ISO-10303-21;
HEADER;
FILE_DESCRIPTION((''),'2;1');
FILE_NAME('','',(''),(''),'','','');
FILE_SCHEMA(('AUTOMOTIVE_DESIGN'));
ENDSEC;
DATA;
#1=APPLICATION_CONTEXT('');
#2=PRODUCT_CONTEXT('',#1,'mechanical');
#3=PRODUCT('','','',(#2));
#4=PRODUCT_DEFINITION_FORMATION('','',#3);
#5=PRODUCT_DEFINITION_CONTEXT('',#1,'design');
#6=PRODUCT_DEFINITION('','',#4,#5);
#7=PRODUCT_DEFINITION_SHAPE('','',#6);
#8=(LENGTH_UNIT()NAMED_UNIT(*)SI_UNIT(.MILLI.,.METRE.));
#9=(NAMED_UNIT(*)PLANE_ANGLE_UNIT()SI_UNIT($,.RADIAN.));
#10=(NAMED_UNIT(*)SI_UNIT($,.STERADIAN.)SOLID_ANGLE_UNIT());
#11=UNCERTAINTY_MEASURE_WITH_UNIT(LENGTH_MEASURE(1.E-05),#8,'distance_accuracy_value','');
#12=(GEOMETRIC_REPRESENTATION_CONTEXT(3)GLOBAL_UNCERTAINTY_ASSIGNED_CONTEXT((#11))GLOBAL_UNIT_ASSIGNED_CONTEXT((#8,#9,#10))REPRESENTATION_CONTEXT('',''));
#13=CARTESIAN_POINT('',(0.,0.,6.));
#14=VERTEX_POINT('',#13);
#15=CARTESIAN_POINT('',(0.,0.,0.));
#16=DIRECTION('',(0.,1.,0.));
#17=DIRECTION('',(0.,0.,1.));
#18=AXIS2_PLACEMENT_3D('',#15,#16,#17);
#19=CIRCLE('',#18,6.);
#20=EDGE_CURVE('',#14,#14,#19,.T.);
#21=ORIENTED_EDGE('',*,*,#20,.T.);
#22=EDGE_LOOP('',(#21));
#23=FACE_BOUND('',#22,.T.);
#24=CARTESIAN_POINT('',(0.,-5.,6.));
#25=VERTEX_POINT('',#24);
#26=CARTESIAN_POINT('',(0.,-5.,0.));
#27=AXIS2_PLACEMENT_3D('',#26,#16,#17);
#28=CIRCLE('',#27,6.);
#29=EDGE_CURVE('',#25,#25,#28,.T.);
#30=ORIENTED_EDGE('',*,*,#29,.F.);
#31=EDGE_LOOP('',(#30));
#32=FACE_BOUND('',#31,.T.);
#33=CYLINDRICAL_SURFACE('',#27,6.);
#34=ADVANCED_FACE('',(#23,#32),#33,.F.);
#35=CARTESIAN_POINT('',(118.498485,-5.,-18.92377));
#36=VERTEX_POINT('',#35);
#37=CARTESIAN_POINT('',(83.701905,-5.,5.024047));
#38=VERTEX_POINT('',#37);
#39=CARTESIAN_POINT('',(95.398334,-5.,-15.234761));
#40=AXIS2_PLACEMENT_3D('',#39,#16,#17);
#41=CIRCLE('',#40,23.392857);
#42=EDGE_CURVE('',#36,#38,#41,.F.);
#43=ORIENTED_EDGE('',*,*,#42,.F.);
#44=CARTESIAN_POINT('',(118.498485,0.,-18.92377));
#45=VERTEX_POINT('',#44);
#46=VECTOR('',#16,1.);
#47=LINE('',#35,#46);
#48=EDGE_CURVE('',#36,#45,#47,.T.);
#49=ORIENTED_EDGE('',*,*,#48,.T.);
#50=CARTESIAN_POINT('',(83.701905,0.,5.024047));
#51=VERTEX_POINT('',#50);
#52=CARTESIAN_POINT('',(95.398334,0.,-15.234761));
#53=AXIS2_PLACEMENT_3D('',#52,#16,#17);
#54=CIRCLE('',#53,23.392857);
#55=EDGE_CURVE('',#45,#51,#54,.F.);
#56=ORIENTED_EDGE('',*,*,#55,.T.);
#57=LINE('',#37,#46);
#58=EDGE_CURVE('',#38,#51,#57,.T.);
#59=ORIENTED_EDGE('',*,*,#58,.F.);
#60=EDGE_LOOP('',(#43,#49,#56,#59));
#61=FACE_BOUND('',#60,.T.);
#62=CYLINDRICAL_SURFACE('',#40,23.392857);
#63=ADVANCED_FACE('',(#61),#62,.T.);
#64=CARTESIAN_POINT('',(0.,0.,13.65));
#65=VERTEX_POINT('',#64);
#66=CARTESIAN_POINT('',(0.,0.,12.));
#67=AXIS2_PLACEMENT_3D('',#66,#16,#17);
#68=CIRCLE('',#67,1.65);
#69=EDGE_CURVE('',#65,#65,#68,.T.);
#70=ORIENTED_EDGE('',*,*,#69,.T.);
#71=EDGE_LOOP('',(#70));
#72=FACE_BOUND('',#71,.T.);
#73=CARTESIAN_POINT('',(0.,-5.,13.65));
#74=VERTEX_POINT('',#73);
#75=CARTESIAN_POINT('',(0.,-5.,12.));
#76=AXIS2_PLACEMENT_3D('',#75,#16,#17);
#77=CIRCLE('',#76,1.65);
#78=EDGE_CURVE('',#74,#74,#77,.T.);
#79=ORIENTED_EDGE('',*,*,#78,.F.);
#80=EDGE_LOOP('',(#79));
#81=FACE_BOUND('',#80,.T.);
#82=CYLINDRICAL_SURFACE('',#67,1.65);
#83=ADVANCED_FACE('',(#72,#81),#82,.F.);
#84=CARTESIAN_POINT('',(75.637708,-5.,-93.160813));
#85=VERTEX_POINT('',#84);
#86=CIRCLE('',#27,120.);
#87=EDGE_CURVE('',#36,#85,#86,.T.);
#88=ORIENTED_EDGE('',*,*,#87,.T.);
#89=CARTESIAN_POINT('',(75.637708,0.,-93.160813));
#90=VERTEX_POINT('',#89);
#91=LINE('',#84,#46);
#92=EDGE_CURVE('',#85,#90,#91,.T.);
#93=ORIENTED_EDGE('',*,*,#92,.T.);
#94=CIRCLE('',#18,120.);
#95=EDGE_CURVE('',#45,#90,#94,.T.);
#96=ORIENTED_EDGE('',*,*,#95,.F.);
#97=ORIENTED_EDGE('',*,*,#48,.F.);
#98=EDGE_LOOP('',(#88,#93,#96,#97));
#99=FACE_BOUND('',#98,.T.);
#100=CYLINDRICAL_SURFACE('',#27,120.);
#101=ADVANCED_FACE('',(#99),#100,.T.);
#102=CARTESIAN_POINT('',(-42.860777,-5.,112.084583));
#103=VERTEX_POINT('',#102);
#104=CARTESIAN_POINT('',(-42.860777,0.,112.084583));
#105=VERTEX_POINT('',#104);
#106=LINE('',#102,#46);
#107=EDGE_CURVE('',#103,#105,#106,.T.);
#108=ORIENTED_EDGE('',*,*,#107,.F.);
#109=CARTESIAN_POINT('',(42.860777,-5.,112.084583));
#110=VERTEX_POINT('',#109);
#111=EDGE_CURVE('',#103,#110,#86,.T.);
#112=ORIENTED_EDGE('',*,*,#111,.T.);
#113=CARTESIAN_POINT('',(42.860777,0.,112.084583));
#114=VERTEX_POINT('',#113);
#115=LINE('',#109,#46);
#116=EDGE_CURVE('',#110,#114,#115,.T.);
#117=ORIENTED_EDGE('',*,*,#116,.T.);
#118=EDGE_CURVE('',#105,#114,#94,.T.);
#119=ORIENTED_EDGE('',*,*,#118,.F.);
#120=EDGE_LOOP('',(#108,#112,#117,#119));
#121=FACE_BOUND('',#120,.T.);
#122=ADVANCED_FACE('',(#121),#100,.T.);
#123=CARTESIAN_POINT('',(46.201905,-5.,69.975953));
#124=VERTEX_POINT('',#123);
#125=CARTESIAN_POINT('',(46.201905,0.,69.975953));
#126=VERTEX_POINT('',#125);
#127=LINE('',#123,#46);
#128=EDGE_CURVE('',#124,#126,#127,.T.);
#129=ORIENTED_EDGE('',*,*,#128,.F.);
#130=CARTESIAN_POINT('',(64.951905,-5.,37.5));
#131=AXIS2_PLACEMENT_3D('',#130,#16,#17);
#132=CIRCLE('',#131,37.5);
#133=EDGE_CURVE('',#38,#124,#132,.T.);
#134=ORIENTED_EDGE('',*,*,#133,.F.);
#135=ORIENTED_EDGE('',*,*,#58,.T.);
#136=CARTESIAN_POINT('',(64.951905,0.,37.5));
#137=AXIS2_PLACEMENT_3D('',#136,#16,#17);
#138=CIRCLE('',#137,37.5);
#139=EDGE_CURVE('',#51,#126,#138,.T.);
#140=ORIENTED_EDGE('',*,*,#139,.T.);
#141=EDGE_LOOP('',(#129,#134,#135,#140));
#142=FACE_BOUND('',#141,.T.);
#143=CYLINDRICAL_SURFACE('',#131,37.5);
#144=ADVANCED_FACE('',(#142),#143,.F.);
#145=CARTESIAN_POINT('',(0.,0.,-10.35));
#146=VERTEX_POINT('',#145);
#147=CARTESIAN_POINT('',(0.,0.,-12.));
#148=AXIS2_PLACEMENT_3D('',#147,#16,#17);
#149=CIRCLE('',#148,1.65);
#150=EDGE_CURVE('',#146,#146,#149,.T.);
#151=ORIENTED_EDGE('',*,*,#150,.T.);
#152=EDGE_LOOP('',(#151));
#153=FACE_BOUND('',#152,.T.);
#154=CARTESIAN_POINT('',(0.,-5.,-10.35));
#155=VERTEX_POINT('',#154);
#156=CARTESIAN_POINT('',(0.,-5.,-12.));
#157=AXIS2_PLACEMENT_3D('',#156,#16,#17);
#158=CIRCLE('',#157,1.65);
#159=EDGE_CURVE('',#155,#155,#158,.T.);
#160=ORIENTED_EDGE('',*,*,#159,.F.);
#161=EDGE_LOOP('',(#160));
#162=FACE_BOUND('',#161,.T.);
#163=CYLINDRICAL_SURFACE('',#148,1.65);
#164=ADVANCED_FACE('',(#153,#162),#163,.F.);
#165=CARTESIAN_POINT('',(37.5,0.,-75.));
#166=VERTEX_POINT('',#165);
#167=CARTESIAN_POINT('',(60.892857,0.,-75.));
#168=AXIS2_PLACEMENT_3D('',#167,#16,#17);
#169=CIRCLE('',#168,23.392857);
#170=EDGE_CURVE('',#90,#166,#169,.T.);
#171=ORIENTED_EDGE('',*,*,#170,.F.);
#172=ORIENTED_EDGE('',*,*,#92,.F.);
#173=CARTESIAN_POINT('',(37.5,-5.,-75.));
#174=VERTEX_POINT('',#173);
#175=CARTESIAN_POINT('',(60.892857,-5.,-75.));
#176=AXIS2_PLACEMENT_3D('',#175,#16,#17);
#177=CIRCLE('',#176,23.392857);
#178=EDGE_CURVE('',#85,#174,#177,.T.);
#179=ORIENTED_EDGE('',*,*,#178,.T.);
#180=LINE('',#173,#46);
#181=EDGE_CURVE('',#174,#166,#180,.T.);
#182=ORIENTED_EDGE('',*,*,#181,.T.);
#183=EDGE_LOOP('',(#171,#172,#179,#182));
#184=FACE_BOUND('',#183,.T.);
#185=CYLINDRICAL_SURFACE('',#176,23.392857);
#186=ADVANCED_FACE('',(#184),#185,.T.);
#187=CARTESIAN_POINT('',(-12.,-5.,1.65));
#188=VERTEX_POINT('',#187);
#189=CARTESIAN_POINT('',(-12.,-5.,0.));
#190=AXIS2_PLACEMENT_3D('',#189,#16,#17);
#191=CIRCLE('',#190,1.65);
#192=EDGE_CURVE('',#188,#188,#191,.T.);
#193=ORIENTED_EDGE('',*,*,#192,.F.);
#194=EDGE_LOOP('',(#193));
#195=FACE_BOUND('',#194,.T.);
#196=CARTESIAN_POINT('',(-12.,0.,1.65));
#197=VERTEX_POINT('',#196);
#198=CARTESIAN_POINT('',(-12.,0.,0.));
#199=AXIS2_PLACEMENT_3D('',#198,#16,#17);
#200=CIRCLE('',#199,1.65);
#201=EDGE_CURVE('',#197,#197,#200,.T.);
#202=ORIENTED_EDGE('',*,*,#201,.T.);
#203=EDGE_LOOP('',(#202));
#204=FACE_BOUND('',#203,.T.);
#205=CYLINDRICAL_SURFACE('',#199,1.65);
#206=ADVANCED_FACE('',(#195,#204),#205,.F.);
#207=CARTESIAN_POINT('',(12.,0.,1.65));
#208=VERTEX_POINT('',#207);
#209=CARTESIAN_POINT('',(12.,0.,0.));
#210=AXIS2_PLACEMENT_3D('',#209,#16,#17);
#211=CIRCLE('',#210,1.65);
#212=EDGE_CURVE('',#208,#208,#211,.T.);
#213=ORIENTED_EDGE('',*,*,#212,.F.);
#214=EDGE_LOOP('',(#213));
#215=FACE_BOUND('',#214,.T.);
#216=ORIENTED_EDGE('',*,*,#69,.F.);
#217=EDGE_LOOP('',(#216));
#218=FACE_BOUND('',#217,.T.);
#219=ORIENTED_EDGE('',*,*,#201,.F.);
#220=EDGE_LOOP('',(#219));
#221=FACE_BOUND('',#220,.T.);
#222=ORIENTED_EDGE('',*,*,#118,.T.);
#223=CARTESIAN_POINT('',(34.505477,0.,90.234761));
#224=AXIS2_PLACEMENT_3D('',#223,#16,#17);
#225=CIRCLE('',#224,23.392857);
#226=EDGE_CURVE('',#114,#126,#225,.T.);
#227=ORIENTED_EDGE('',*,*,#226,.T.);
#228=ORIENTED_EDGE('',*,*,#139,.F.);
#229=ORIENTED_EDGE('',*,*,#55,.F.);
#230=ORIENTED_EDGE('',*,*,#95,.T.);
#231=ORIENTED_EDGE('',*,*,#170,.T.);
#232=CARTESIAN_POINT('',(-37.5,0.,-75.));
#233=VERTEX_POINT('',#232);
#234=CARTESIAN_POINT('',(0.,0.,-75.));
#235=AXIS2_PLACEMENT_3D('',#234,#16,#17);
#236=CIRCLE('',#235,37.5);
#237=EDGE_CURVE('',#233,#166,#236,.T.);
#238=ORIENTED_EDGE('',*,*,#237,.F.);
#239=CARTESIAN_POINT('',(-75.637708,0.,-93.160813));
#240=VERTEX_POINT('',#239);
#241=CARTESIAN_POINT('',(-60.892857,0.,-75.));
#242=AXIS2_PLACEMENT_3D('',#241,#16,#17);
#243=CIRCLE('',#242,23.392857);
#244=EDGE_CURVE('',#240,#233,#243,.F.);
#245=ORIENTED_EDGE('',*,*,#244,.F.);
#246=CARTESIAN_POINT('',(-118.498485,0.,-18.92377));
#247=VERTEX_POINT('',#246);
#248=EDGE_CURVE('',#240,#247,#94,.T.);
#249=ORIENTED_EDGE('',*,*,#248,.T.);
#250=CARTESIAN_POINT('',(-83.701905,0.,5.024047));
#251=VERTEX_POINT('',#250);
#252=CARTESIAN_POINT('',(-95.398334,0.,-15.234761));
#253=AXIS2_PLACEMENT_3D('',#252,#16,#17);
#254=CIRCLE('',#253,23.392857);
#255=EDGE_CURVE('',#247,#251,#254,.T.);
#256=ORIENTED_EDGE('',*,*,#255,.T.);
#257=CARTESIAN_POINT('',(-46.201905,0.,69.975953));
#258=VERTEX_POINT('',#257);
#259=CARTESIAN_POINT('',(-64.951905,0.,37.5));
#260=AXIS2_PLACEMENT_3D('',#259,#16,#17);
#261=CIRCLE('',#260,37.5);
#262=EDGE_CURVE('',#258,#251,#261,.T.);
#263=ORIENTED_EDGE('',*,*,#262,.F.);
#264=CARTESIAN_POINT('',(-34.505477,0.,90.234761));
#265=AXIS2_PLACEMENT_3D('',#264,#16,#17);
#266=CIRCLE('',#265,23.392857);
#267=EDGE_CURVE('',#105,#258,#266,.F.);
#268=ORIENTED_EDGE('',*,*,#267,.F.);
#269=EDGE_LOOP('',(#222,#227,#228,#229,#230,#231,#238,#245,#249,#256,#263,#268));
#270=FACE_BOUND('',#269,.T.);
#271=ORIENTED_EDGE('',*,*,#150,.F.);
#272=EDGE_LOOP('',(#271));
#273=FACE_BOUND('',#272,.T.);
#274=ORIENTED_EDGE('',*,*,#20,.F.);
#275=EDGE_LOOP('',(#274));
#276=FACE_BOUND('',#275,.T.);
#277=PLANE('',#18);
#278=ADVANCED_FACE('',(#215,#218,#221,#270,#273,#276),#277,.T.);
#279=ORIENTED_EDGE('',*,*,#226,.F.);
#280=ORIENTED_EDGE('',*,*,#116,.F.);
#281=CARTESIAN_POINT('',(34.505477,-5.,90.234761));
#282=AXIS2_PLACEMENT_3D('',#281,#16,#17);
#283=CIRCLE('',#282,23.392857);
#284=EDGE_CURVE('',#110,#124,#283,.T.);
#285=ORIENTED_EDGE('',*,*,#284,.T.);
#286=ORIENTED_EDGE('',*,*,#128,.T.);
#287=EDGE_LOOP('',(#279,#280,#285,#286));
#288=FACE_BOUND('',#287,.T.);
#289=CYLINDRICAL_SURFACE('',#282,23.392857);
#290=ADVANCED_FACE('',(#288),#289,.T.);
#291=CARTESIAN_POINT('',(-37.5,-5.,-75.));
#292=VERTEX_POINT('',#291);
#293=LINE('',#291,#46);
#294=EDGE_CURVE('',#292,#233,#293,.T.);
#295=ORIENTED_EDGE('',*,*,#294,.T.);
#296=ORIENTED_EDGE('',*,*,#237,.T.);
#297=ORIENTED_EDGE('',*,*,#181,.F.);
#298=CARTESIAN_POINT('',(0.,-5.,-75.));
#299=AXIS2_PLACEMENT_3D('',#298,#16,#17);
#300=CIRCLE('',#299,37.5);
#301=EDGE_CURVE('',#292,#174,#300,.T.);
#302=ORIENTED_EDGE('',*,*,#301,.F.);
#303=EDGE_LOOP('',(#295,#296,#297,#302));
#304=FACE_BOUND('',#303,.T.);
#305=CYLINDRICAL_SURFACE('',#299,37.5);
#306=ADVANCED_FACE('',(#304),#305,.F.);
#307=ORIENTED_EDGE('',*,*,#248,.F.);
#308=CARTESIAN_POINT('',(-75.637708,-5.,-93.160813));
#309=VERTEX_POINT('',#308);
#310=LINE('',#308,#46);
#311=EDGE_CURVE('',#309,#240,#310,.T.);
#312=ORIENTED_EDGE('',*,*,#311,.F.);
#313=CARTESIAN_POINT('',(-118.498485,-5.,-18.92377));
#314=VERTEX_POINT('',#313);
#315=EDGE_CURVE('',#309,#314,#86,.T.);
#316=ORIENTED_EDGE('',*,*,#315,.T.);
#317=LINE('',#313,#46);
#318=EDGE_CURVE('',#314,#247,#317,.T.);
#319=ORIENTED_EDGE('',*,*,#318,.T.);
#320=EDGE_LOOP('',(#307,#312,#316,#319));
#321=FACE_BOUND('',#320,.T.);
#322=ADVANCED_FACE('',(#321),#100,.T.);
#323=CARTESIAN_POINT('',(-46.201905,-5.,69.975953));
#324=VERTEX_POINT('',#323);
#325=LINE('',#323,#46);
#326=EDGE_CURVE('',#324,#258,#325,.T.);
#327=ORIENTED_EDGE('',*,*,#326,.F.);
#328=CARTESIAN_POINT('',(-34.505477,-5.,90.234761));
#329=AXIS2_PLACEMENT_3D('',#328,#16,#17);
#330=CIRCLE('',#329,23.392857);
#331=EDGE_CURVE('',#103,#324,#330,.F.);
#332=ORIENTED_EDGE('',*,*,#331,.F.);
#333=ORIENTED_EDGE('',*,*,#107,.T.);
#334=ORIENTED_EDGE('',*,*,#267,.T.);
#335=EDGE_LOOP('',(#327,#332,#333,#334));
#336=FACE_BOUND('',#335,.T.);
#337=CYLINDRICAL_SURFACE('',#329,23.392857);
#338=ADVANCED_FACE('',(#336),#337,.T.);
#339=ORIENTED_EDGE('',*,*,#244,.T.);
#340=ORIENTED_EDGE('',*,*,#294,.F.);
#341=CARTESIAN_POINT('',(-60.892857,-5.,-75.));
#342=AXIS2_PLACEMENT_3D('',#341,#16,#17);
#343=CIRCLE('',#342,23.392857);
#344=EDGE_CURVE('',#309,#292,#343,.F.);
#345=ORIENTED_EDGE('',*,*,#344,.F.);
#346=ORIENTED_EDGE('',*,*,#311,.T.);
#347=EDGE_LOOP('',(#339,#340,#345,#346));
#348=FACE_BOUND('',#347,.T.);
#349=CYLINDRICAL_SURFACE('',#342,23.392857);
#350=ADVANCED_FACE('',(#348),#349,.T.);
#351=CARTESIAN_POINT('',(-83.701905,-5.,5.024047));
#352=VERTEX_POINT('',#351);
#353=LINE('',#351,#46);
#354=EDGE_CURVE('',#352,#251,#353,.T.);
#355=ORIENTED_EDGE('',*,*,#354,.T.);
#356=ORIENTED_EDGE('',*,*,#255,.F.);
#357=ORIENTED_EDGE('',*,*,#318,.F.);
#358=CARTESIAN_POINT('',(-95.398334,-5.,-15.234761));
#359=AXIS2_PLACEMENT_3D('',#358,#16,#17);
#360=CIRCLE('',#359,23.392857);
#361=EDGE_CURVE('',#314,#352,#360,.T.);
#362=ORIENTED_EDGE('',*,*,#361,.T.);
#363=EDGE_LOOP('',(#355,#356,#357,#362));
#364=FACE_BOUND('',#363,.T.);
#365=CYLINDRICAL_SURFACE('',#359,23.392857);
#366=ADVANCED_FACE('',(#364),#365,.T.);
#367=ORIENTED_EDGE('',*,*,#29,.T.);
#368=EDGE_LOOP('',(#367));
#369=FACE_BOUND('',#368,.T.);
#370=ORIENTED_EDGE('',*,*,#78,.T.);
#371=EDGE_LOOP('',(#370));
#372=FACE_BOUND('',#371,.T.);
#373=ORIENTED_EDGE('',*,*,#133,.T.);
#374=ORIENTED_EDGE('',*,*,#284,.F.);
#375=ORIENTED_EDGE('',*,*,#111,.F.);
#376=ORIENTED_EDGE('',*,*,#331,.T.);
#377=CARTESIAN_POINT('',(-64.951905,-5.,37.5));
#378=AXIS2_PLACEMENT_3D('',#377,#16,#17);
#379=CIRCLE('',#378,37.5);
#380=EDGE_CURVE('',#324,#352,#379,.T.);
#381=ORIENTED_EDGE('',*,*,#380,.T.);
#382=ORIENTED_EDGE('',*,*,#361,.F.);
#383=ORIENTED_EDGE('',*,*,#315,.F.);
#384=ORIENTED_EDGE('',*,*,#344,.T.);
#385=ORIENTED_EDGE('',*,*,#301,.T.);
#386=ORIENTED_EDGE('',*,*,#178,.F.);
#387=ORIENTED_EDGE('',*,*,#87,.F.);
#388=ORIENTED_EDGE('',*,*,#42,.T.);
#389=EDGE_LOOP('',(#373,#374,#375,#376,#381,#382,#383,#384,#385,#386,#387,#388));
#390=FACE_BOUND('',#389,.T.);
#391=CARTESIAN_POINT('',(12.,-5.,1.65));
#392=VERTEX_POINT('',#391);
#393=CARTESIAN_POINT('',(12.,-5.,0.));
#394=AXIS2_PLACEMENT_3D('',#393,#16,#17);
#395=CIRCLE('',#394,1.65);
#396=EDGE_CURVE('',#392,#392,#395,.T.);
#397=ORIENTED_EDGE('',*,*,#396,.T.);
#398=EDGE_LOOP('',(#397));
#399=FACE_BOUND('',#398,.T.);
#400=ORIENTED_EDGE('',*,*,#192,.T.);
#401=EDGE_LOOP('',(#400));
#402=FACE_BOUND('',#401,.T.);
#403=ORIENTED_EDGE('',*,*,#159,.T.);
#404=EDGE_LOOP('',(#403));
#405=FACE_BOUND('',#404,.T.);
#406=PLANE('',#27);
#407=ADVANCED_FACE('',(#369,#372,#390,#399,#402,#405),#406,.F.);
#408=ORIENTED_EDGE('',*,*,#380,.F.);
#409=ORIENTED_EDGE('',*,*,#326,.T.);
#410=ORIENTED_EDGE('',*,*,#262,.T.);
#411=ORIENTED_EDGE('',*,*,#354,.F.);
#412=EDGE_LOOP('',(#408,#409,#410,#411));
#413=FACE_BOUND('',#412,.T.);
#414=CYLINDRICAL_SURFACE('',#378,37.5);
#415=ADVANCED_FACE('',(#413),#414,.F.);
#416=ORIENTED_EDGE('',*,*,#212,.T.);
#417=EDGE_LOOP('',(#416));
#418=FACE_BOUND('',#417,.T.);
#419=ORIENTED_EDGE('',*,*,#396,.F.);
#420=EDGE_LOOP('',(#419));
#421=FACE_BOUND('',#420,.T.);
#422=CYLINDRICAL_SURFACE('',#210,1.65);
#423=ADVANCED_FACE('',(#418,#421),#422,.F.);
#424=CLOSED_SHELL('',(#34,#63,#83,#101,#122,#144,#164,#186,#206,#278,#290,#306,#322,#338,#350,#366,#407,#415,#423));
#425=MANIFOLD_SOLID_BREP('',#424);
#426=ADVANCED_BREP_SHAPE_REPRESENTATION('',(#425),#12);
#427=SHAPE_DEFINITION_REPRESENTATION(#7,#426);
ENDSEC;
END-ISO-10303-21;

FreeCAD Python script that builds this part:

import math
import FreeCAD as App
import Part
import Sketcher
Q = App.Units.Quantity

doc = App.newDocument("Part")
body = doc.addObject("PartDesign::Body", "Body")

# Sketch on XZ plane
sketch1 = body.newObject("Sketcher::SketchObject", "Sketch")
sketch1.AttachmentSupport = (doc.getObject("XZ_Plane"), [""])
sketch1.MapMode = "FlatFace"
sketch1.addGeometry(Part.ArcOfCircle(Part.Circle(App.Vector(0, 0, 0), App.Vector(0, 0, 1), 120), math.radians(-171), math.radians(-129)), False)
sketch1.addGeometry(Part.ArcOfCircle(Part.Circle(App.Vector(-95, -15, 0), App.Vector(0, 0, 1), 23), math.radians(60), math.radians(189)), False)
sketch1.addGeometry(Part.ArcOfCircle(Part.Circle(App.Vector(-65, 38, 0), App.Vector(0, 0, 1), 38), math.radians(-120), math.radians(60)), False)
sketch1.addGeometry(Part.ArcOfCircle(Part.Circle(App.Vector(-35, 90, 0), App.Vector(0, 0, 1), 23), math.radians(111), math.radians(240)), False)
sketch1.addGeometry(Part.ArcOfCircle(Part.Circle(App.Vector(0, 0, 0), App.Vector(0, 0, 1), 120), math.radians(69), math.radians(111)), False)
sketch1.addGeometry(Part.ArcOfCircle(Part.Circle(App.Vector(35, 90, 0), App.Vector(0, 0, 1), 23), math.radians(-60), math.radians(69)), False)
sketch1.addGeometry(Part.ArcOfCircle(Part.Circle(App.Vector(65, 38, 0), App.Vector(0, 0, 1), 38), math.radians(120), math.radians(300)), False)
sketch1.addGeometry(Part.ArcOfCircle(Part.Circle(App.Vector(95, -15, 0), App.Vector(0, 0, 1), 23), math.radians(-9), math.radians(120)), False)
sketch1.addGeometry(Part.ArcOfCircle(Part.Circle(App.Vector(0, 0, 0), App.Vector(0, 0, 1), 120), math.radians(-51), math.radians(-9)), False)
sketch1.addGeometry(Part.ArcOfCircle(Part.Circle(App.Vector(61, -75, 0), App.Vector(0, 0, 1), 23), math.radians(180), math.radians(309)), False)
sketch1.addGeometry(Part.ArcOfCircle(Part.Circle(App.Vector(0, -75, 0), App.Vector(0, 0, 1), 38), math.radians(0), math.radians(180)), False)
sketch1.addGeometry(Part.ArcOfCircle(Part.Circle(App.Vector(-61, -75, 0), App.Vector(0, 0, 1), 23), math.radians(-129), math.radians(0)), False)
sketch1.addGeometry(Part.Circle(App.Vector(0, 0, 0), App.Vector(0, 0, 1), 6), False)
sketch1.addConstraint(Sketcher.Constraint("Tangent", 0, 1, 1, 2))
sketch1.addConstraint(Sketcher.Constraint("Tangent", 1, 1, 2, 1))
sketch1.addConstraint(Sketcher.Constraint("Tangent", 2, 2, 3, 2))
sketch1.addConstraint(Sketcher.Constraint("Tangent", 3, 1, 4, 2))
sketch1.addConstraint(Sketcher.Constraint("Tangent", 4, 1, 5, 2))
sketch1.addConstraint(Sketcher.Constraint("Tangent", 5, 1, 6, 1))
sketch1.addConstraint(Sketcher.Constraint("Tangent", 6, 2, 7, 2))
sketch1.addConstraint(Sketcher.Constraint("Tangent", 7, 1, 8, 2))
sketch1.addConstraint(Sketcher.Constraint("Tangent", 8, 1, 9, 2))
sketch1.addConstraint(Sketcher.Constraint("Tangent", 9, 1, 10, 1))
sketch1.addConstraint(Sketcher.Constraint("Tangent", 10, 2, 11, 2))
sketch1.addConstraint(Sketcher.Constraint("Tangent", 11, 1, 0, 2))
sketch1.addConstraint(Sketcher.Constraint("Coincident", 0, 3, -1, 1))
sketch1.addConstraint(Sketcher.Constraint("Coincident", 4, 3, -1, 1))
sketch1.addConstraint(Sketcher.Constraint("Coincident", 8, 3, -1, 1))
sketch1.addConstraint(Sketcher.Constraint("Coincident", 12, 3, -1, 1))
sketch1.addConstraint(Sketcher.Constraint("Equal", 1, 3))
sketch1.addConstraint(Sketcher.Constraint("Equal", 0, 4))
sketch1.addConstraint(Sketcher.Constraint("Equal", 3, 5))
sketch1.addConstraint(Sketcher.Constraint("Equal", 2, 6))
sketch1.addConstraint(Sketcher.Constraint("Equal", 5, 7))
sketch1.addConstraint(Sketcher.Constraint("Equal", 4, 8))
sketch1.addConstraint(Sketcher.Constraint("Equal", 7, 9))
sketch1.addConstraint(Sketcher.Constraint("Equal", 6, 10))
sketch1.addConstraint(Sketcher.Constraint("Equal", 9, 11))
sketch1.addConstraint(Sketcher.Constraint("Symmetric", 2, 3, 6, 3, -2))
sketch1.addConstraint(Sketcher.Constraint("PointOnObject", 10, 3, -2))
sketch1.addConstraint(Sketcher.Constraint("Horizontal", 9, 3, 10, 3))
sketch1.addConstraint(Sketcher.Constraint("Diameter", 12, Q("12 mm")))
sketch1.addConstraint(Sketcher.Constraint("Radius", 0, Q("120 mm")))
sketch1.addConstraint(Sketcher.Constraint("Radius", 2, Q("37.5 mm")))
sketch1.addConstraint(Sketcher.Constraint("DistanceY", 9, 3, -1, 1, Q("75 mm")))
sketch1.addConstraint(Sketcher.Constraint("DistanceY", -1, 1, 2, 3, Q("37.5 mm")))
sketch1.addConstraint(Sketcher.Constraint("DistanceX", 1, 1, 2, 2, Q("37.5 mm")))
pad1 = body.newObject("PartDesign::Pad", "Pad")
pad1.Profile = sketch1
pad1.Length = 5

# Sketch on XZ plane
sketch2 = body.newObject("Sketcher::SketchObject", "Sketch001")
sketch2.AttachmentSupport = (doc.getObject("XZ_Plane"), [""])
sketch2.MapMode = "FlatFace"
sketch2.addGeometry(Part.Circle(App.Vector(0, -12, 0), App.Vector(0, 0, 1), 1.6), False)
sketch2.addGeometry(Part.Circle(App.Vector(12, 0, 0), App.Vector(0, 0, 1), 1.6), False)
sketch2.addGeometry(Part.Circle(App.Vector(0, 12, 0), App.Vector(0, 0, 1), 1.6), False)
sketch2.addGeometry(Part.Circle(App.Vector(-12, 0, 0), App.Vector(0, 0, 1), 1.6), False)
sketch2.addConstraint(Sketcher.Constraint("Equal", 0, 1))
sketch2.addConstraint(Sketcher.Constraint("Equal", 1, 2))
sketch2.addConstraint(Sketcher.Constraint("Equal", 2, 3))
sketch2.addConstraint(Sketcher.Constraint("Symmetric", 0, 3, 2, 3, -1, 1))
sketch2.addConstraint(Sketcher.Constraint("Symmetric", 1, 3, 3, 3, -1, 1))
sketch2.addConstraint(Sketcher.Constraint("PointOnObject", 0, 3, -2))
sketch2.addConstraint(Sketcher.Constraint("PointOnObject", 1, 3, -1))
sketch2.addConstraint(Sketcher.Constraint("Diameter", 0, Q("3.3 mm")))
sketch2.addConstraint(Sketcher.Constraint("DistanceY", 0, 3, -1, 1, Q("12 mm")))
sketch2.addConstraint(Sketcher.Constraint("DistanceX", -1, 1, 1, 3, Q("12 mm")))
doc.recompute()
hole = body.newObject("PartDesign::Hole", "Hole")
hole.Profile = sketch2
hole.ThreadType = "None"
hole.Diameter = 3.3
hole.DepthType = "ThroughAll"
hole.Reversed = True

doc.recompute()
